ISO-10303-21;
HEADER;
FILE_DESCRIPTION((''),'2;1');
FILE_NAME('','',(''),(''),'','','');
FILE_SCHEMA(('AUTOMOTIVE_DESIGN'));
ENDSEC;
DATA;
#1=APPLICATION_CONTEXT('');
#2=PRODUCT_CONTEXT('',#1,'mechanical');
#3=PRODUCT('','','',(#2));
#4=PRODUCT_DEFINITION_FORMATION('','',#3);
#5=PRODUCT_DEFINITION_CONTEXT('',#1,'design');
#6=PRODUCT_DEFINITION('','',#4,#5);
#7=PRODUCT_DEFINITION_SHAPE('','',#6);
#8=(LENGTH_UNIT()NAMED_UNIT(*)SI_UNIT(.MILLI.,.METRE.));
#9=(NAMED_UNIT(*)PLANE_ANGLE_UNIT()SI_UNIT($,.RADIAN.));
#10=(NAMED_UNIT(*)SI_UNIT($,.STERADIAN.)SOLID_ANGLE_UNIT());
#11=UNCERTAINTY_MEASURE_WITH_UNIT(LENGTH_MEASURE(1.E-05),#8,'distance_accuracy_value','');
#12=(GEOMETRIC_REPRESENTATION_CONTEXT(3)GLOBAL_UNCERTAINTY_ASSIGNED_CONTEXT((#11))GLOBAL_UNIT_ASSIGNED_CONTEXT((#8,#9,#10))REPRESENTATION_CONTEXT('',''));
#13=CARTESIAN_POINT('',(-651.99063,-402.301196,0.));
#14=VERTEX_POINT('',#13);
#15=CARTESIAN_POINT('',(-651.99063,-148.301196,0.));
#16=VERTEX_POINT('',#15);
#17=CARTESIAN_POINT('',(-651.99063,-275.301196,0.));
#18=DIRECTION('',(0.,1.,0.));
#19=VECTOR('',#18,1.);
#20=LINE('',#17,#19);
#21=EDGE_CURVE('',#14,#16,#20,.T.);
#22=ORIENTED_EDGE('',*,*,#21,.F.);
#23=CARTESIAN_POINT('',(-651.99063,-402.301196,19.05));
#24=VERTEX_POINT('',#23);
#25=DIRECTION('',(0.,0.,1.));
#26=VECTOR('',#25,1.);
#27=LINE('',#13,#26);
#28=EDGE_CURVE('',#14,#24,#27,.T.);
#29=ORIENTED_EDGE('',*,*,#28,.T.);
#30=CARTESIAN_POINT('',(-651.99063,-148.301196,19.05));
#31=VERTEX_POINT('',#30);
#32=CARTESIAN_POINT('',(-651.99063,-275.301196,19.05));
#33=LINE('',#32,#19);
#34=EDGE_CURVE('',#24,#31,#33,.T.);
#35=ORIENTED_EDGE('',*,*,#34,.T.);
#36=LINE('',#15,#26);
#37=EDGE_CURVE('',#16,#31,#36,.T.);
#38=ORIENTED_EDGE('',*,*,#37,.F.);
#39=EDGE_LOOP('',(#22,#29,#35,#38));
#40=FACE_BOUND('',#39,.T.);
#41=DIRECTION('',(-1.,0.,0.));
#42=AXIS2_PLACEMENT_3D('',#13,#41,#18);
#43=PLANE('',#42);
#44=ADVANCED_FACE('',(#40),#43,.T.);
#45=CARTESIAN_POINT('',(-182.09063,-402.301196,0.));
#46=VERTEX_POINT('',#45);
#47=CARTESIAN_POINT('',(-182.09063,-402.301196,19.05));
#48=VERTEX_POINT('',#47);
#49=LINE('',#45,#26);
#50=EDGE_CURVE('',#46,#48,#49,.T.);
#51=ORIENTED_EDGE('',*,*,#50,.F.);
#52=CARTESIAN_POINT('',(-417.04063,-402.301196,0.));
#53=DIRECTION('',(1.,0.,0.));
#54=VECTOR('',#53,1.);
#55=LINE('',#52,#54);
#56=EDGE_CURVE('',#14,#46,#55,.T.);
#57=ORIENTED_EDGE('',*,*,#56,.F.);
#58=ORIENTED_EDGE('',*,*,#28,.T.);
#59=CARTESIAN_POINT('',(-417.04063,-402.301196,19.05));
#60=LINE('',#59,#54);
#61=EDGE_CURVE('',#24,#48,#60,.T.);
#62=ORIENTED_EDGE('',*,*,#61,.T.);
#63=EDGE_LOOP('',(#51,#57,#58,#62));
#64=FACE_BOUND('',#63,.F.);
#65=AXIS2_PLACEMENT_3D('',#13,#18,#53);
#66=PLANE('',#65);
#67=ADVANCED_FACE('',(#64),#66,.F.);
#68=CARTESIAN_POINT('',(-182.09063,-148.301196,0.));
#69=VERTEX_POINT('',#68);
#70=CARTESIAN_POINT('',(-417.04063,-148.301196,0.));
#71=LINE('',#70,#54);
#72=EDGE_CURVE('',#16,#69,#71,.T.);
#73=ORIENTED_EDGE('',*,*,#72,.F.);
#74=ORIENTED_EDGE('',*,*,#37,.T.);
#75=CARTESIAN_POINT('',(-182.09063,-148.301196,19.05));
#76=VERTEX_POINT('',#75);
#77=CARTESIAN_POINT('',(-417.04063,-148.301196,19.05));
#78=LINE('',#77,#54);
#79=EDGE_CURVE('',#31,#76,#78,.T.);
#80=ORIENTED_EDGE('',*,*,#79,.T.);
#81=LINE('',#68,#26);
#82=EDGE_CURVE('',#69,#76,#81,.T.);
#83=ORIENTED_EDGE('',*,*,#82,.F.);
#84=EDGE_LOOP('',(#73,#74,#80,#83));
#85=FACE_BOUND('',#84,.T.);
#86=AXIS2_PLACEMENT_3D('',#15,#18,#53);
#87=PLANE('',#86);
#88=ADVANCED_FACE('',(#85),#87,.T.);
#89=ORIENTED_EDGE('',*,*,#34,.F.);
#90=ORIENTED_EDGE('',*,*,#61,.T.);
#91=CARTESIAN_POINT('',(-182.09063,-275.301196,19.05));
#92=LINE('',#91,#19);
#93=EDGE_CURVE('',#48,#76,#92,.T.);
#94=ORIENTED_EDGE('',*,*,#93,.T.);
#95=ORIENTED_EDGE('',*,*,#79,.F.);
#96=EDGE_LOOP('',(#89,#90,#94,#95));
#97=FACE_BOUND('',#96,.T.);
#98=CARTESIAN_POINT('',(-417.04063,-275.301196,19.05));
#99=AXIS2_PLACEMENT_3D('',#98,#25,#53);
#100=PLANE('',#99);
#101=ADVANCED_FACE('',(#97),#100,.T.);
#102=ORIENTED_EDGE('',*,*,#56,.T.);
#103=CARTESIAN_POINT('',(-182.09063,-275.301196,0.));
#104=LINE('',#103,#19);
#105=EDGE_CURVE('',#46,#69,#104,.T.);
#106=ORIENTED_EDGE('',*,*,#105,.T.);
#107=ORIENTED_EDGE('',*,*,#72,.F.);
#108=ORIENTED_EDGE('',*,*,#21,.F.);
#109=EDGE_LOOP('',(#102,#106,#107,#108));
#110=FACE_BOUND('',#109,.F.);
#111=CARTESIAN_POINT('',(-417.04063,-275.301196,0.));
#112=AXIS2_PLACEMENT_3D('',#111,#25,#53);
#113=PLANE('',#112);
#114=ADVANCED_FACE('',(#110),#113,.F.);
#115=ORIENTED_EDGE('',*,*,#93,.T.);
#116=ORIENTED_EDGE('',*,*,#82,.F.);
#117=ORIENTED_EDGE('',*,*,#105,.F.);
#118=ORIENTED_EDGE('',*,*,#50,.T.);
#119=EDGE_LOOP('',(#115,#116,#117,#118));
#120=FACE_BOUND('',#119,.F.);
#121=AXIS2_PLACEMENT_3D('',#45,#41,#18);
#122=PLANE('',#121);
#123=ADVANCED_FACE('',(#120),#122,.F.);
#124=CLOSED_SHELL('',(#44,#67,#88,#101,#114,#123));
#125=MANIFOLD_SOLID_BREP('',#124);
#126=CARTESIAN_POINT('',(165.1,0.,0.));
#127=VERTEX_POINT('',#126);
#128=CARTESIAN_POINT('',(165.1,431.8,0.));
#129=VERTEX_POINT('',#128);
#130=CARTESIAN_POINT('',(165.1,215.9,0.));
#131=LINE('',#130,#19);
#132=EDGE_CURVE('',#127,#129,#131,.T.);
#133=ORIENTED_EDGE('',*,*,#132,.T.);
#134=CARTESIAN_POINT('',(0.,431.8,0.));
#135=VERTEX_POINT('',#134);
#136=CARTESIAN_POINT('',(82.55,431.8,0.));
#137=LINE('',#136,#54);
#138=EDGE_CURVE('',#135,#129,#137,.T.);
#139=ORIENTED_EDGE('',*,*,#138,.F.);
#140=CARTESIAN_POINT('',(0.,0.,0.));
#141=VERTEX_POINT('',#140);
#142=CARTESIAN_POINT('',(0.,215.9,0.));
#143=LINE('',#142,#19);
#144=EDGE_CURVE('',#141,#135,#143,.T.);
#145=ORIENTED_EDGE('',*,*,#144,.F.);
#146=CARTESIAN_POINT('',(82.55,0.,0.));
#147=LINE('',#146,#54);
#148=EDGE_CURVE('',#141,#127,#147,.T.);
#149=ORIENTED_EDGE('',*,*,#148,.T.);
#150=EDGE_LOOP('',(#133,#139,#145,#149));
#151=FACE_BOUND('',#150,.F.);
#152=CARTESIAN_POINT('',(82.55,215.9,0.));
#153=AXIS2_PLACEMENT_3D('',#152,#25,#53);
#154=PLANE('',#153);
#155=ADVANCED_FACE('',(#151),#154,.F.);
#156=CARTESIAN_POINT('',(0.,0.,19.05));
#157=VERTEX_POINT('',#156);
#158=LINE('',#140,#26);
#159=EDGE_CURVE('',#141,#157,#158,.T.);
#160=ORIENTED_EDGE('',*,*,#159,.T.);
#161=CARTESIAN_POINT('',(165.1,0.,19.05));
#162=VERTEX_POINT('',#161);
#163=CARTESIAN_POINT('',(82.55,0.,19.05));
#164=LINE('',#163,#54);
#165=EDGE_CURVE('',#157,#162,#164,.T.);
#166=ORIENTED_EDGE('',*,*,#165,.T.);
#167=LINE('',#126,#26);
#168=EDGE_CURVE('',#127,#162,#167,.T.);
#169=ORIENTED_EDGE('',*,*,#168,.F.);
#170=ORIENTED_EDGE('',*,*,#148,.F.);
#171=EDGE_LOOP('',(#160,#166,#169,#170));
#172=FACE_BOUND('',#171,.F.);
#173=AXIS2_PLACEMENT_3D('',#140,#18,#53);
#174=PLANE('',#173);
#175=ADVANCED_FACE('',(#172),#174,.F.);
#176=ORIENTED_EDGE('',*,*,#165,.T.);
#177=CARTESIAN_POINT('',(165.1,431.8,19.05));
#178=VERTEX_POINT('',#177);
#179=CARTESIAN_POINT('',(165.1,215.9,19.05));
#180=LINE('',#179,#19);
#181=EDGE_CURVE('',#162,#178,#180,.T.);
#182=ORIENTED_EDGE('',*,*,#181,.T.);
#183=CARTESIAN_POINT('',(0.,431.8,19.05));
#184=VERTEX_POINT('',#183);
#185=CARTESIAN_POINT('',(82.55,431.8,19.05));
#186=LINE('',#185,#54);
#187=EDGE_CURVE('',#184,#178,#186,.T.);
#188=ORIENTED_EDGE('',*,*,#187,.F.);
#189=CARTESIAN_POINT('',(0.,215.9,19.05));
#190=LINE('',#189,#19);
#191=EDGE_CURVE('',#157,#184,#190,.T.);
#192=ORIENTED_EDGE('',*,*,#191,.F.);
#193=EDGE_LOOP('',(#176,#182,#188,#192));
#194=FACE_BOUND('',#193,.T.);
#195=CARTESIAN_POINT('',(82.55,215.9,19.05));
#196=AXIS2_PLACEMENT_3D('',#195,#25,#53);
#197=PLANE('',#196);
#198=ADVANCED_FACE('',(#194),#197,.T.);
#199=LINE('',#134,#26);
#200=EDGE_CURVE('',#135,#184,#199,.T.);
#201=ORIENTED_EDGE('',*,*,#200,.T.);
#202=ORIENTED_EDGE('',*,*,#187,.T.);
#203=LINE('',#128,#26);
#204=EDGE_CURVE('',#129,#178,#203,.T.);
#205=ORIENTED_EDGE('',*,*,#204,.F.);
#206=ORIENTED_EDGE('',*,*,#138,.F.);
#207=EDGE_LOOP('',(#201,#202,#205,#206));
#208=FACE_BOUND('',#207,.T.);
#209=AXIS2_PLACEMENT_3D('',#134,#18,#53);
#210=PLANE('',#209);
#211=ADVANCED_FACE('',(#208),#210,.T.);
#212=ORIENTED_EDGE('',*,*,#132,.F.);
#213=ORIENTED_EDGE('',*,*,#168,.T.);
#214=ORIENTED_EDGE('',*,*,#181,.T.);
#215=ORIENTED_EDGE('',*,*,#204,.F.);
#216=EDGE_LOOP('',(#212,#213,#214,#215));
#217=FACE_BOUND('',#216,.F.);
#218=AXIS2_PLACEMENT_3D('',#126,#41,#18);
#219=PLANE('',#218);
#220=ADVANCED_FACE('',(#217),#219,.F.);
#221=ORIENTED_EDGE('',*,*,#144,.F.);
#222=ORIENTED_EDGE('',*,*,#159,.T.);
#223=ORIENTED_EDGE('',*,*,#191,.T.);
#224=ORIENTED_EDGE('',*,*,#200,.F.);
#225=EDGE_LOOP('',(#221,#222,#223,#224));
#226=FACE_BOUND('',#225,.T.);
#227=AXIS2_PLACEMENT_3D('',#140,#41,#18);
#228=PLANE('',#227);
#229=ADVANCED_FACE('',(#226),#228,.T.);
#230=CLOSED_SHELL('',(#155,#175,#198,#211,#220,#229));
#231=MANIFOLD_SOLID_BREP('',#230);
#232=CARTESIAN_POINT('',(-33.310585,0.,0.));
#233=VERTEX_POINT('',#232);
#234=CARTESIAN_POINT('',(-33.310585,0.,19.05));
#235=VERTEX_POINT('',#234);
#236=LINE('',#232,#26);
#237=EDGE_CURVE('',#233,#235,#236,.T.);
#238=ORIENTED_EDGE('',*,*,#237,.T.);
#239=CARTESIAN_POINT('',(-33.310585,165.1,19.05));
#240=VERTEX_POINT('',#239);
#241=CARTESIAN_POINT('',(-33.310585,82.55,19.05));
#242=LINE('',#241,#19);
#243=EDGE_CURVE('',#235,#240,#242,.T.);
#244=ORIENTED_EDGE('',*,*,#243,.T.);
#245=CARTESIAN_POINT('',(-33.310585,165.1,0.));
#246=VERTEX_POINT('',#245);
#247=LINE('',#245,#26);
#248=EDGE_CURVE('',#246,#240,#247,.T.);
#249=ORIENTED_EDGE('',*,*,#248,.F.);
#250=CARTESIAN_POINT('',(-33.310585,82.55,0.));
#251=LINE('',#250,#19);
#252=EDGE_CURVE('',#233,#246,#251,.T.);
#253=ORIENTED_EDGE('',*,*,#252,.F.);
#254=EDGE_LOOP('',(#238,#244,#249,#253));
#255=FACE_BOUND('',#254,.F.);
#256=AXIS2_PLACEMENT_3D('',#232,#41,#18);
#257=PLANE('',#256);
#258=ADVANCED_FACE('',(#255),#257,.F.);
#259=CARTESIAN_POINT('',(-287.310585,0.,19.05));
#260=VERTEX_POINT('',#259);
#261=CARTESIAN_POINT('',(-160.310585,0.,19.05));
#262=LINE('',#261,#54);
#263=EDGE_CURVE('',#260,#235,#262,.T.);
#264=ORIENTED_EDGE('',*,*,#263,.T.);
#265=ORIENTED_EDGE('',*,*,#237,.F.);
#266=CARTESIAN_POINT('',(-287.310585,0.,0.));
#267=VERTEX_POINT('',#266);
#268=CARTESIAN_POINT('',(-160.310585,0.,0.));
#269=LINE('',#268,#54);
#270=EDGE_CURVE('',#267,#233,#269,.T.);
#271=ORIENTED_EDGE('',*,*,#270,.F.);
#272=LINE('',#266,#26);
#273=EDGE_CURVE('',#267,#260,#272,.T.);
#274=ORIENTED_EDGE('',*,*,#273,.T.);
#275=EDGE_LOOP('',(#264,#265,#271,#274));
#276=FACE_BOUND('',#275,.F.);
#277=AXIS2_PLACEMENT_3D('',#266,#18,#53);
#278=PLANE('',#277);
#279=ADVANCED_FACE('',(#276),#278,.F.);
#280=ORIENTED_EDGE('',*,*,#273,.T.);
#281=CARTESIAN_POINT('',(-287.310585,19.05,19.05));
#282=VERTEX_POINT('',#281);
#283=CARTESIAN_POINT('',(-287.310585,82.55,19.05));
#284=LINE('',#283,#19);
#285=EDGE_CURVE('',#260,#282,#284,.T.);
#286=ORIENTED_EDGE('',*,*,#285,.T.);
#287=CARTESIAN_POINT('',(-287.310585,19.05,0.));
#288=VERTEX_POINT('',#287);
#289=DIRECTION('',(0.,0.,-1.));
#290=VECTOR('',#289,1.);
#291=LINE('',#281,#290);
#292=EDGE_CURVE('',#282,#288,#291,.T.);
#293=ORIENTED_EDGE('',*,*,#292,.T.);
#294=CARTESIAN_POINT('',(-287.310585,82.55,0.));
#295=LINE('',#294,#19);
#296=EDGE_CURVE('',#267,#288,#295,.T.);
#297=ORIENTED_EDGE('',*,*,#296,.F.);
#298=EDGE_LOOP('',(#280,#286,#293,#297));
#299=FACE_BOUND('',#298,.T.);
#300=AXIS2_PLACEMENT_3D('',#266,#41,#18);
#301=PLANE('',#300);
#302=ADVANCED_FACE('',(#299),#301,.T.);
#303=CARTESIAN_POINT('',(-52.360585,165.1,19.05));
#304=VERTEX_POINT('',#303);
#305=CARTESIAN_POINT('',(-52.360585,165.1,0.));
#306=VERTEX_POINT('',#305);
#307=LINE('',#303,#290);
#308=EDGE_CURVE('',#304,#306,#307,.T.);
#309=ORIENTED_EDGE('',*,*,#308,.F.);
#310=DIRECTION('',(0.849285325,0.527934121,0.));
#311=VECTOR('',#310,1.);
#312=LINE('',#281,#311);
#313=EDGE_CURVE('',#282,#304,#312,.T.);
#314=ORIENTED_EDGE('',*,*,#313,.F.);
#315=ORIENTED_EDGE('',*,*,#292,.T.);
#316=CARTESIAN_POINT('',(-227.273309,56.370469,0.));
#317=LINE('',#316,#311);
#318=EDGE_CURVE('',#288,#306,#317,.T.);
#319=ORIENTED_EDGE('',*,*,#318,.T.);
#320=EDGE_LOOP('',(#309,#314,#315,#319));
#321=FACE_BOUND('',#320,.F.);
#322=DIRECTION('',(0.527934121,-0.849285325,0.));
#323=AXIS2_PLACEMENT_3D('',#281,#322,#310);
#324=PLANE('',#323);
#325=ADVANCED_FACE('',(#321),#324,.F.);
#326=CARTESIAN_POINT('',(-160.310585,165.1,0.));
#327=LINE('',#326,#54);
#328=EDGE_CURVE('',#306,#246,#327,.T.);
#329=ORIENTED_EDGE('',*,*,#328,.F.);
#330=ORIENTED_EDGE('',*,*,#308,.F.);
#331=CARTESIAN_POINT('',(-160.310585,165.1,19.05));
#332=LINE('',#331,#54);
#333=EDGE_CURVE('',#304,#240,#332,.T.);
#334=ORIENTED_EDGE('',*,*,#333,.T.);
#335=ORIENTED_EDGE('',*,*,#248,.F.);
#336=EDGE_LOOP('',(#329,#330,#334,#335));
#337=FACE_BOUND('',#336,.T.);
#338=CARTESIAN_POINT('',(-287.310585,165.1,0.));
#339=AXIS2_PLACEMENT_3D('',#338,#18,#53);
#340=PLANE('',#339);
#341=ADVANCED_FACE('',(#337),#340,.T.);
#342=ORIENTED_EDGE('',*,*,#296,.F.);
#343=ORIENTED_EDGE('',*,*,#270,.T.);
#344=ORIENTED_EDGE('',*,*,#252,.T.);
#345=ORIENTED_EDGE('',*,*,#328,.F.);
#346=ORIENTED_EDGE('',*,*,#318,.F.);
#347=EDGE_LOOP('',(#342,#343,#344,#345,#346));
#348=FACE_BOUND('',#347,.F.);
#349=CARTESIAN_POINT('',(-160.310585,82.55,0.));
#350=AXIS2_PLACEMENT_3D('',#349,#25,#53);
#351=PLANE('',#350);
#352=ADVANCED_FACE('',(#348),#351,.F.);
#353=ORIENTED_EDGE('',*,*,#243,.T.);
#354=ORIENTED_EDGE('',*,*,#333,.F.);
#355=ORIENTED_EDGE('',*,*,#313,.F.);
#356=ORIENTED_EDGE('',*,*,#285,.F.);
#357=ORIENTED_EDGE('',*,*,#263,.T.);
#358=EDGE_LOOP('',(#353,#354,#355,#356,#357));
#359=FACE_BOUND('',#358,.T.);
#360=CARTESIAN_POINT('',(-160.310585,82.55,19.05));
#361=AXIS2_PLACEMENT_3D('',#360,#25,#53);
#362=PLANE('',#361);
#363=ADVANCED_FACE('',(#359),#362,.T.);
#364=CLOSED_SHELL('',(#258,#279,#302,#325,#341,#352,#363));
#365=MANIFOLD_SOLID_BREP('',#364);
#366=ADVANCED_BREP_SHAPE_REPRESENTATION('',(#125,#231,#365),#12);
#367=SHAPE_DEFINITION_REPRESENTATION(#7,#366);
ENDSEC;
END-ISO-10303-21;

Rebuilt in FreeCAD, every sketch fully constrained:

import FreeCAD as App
import Part
import Sketcher
from FreeCAD import Vector
Q = App.Units.Quantity


def add_polygon(sketch, points):
    """Adds a closed chain of lines whose ends are joined by coincident constraints."""
    first, n = sketch.GeometryCount, len(points)
    for a, b in zip(points, points[1:] + points[:1]):
        sketch.addGeometry(Part.LineSegment(App.Vector(*a, 0), App.Vector(*b, 0)), False)
    for i in range(n):
        sketch.addConstraint(Sketcher.Constraint("Coincident", first + i, 2, first + (i + 1) % n, 1))

doc = App.newDocument("Part")
body = doc.addObject("PartDesign::Body", "Body")

# Sketch on XY plane
sketch1 = body.newObject("Sketcher::SketchObject", "Sketch")
sketch1.AttachmentSupport = (doc.getObject("XY_Plane"), [""])
sketch1.MapMode = "FlatFace"
add_polygon(sketch1, [(0, 431.8), (0, 0), (165.1, 0), (165.1, 431.8)])  # lines 0-3
sketch1.addConstraint([
    Sketcher.Constraint("Vertical", 0),
    Sketcher.Constraint("Horizontal", 1),
    Sketcher.Constraint("Vertical", 2),
    Sketcher.Constraint("Horizontal", 3),
    Sketcher.Constraint("Coincident", 0, 2, -1, 1),
    Sketcher.Constraint("DistanceY", 0, 2, 0, 1, Q("17 in")),
    Sketcher.Constraint("DistanceX", 1, 1, 1, 2, Q("6.5 in")),
])
pad1 = body.newObject("PartDesign::Pad", "Pad")
pad1.Profile = sketch1
pad1.Length = Q("0.75 in")
body2 = doc.addObject("PartDesign::Body", "Body001")

# Sketch on XY plane
sketch2 = body2.newObject("Sketcher::SketchObject", "Sketch001")
sketch2.AttachmentSupport = (doc.getObject("XY_Plane001"), [""])
sketch2.MapMode = "FlatFace"
add_polygon(sketch2, [(-287.310585, 165.1), (-287.310585, 0), (-33.310585, 0), (-33.310585, 165.1)])  # lines 0-3
sketch2.addConstraint([
    Sketcher.Constraint("Vertical", 0),
    Sketcher.Constraint("Horizontal", 1),
    Sketcher.Constraint("Vertical", 2),
    Sketcher.Constraint("Horizontal", 3),
    Sketcher.Constraint("PointOnObject", 0, 2, -1),
    Sketcher.Constraint("DistanceX", 1, 1, 1, 2, Q("10 in")),
    Sketcher.Constraint("DistanceY", 0, 2, 0, 1, Q("6.5 in")),
    Sketcher.Constraint("DistanceX", 0, 2, -1, 1, Q("287.310585 mm")),
])
pad2 = body2.newObject("PartDesign::Pad", "Pad001")
pad2.Profile = sketch2
pad2.Length = Q("0.75 in")

# Sketch on XY plane
sketch3 = body2.newObject("Sketcher::SketchObject", "Sketch002")
sketch3.AttachmentSupport = (doc.getObject("XY_Plane001"), [""])
sketch3.MapMode = "FlatFace"
sketch3.AttachmentOffset = App.Placement(Vector(0, 0, 0.75 * 25.4), App.Rotation())
add_polygon(sketch3, [(-287.310585, 19.05), (-52.360585, 165.1), (-287.310585, 165.1)])  # lines 0-2
sketch3.addConstraint([
    Sketcher.Constraint("Horizontal", 1),
    Sketcher.Constraint("Vertical", 2),
    Sketcher.Constraint("DistanceX", 1, 2, 1, 1, Q("9.25 in")),
    Sketcher.Constraint("DistanceY", 2, 2, 2, 1, Q("5.75 in")),
    Sketcher.Constraint("DistanceY", -1, 1, 0, 2, Q("6.5 in")),
    Sketcher.Constraint("DistanceX", 0, 2, -1, 1, Q("52.360585 mm")),
])
pocket1 = body2.newObject("PartDesign::Pocket", "Pocket")
pocket1.Profile = sketch3
pocket1.Type = "ThroughAll"
body3 = doc.addObject("PartDesign::Body", "Body002")

# Sketch on XY plane
sketch4 = body3.newObject("Sketcher::SketchObject", "Sketch003")
sketch4.AttachmentSupport = (doc.getObject("XY_Plane002"), [""])
sketch4.MapMode = "FlatFace"
add_polygon(sketch4, [(-651.99063, -148.301196), (-651.99063, -402.301196), (-182.09063, -402.301196), (-182.09063, -148.301196)])  # lines 0-3
sketch4.addConstraint([
    Sketcher.Constraint("Vertical", 0),
    Sketcher.Constraint("Horizontal", 1),
    Sketcher.Constraint("Vertical", 2),
    Sketcher.Constraint("Horizontal", 3),
    Sketcher.Constraint("DistanceY", 0, 2, 0, 1, Q("10 in")),
    Sketcher.Constraint("DistanceX", 1, 1, 1, 2, Q("18.5 in")),
    Sketcher.Constraint("DistanceX", 0, 2, -1, 1, Q("651.99063 mm")),
    Sketcher.Constraint("DistanceY", 0, 2, -1, 1, Q("402.301196 mm")),
])
pad3 = body3.newObject("PartDesign::Pad", "Pad002")
pad3.Profile = sketch4
pad3.Length = Q("0.75 in")

doc.recompute()
